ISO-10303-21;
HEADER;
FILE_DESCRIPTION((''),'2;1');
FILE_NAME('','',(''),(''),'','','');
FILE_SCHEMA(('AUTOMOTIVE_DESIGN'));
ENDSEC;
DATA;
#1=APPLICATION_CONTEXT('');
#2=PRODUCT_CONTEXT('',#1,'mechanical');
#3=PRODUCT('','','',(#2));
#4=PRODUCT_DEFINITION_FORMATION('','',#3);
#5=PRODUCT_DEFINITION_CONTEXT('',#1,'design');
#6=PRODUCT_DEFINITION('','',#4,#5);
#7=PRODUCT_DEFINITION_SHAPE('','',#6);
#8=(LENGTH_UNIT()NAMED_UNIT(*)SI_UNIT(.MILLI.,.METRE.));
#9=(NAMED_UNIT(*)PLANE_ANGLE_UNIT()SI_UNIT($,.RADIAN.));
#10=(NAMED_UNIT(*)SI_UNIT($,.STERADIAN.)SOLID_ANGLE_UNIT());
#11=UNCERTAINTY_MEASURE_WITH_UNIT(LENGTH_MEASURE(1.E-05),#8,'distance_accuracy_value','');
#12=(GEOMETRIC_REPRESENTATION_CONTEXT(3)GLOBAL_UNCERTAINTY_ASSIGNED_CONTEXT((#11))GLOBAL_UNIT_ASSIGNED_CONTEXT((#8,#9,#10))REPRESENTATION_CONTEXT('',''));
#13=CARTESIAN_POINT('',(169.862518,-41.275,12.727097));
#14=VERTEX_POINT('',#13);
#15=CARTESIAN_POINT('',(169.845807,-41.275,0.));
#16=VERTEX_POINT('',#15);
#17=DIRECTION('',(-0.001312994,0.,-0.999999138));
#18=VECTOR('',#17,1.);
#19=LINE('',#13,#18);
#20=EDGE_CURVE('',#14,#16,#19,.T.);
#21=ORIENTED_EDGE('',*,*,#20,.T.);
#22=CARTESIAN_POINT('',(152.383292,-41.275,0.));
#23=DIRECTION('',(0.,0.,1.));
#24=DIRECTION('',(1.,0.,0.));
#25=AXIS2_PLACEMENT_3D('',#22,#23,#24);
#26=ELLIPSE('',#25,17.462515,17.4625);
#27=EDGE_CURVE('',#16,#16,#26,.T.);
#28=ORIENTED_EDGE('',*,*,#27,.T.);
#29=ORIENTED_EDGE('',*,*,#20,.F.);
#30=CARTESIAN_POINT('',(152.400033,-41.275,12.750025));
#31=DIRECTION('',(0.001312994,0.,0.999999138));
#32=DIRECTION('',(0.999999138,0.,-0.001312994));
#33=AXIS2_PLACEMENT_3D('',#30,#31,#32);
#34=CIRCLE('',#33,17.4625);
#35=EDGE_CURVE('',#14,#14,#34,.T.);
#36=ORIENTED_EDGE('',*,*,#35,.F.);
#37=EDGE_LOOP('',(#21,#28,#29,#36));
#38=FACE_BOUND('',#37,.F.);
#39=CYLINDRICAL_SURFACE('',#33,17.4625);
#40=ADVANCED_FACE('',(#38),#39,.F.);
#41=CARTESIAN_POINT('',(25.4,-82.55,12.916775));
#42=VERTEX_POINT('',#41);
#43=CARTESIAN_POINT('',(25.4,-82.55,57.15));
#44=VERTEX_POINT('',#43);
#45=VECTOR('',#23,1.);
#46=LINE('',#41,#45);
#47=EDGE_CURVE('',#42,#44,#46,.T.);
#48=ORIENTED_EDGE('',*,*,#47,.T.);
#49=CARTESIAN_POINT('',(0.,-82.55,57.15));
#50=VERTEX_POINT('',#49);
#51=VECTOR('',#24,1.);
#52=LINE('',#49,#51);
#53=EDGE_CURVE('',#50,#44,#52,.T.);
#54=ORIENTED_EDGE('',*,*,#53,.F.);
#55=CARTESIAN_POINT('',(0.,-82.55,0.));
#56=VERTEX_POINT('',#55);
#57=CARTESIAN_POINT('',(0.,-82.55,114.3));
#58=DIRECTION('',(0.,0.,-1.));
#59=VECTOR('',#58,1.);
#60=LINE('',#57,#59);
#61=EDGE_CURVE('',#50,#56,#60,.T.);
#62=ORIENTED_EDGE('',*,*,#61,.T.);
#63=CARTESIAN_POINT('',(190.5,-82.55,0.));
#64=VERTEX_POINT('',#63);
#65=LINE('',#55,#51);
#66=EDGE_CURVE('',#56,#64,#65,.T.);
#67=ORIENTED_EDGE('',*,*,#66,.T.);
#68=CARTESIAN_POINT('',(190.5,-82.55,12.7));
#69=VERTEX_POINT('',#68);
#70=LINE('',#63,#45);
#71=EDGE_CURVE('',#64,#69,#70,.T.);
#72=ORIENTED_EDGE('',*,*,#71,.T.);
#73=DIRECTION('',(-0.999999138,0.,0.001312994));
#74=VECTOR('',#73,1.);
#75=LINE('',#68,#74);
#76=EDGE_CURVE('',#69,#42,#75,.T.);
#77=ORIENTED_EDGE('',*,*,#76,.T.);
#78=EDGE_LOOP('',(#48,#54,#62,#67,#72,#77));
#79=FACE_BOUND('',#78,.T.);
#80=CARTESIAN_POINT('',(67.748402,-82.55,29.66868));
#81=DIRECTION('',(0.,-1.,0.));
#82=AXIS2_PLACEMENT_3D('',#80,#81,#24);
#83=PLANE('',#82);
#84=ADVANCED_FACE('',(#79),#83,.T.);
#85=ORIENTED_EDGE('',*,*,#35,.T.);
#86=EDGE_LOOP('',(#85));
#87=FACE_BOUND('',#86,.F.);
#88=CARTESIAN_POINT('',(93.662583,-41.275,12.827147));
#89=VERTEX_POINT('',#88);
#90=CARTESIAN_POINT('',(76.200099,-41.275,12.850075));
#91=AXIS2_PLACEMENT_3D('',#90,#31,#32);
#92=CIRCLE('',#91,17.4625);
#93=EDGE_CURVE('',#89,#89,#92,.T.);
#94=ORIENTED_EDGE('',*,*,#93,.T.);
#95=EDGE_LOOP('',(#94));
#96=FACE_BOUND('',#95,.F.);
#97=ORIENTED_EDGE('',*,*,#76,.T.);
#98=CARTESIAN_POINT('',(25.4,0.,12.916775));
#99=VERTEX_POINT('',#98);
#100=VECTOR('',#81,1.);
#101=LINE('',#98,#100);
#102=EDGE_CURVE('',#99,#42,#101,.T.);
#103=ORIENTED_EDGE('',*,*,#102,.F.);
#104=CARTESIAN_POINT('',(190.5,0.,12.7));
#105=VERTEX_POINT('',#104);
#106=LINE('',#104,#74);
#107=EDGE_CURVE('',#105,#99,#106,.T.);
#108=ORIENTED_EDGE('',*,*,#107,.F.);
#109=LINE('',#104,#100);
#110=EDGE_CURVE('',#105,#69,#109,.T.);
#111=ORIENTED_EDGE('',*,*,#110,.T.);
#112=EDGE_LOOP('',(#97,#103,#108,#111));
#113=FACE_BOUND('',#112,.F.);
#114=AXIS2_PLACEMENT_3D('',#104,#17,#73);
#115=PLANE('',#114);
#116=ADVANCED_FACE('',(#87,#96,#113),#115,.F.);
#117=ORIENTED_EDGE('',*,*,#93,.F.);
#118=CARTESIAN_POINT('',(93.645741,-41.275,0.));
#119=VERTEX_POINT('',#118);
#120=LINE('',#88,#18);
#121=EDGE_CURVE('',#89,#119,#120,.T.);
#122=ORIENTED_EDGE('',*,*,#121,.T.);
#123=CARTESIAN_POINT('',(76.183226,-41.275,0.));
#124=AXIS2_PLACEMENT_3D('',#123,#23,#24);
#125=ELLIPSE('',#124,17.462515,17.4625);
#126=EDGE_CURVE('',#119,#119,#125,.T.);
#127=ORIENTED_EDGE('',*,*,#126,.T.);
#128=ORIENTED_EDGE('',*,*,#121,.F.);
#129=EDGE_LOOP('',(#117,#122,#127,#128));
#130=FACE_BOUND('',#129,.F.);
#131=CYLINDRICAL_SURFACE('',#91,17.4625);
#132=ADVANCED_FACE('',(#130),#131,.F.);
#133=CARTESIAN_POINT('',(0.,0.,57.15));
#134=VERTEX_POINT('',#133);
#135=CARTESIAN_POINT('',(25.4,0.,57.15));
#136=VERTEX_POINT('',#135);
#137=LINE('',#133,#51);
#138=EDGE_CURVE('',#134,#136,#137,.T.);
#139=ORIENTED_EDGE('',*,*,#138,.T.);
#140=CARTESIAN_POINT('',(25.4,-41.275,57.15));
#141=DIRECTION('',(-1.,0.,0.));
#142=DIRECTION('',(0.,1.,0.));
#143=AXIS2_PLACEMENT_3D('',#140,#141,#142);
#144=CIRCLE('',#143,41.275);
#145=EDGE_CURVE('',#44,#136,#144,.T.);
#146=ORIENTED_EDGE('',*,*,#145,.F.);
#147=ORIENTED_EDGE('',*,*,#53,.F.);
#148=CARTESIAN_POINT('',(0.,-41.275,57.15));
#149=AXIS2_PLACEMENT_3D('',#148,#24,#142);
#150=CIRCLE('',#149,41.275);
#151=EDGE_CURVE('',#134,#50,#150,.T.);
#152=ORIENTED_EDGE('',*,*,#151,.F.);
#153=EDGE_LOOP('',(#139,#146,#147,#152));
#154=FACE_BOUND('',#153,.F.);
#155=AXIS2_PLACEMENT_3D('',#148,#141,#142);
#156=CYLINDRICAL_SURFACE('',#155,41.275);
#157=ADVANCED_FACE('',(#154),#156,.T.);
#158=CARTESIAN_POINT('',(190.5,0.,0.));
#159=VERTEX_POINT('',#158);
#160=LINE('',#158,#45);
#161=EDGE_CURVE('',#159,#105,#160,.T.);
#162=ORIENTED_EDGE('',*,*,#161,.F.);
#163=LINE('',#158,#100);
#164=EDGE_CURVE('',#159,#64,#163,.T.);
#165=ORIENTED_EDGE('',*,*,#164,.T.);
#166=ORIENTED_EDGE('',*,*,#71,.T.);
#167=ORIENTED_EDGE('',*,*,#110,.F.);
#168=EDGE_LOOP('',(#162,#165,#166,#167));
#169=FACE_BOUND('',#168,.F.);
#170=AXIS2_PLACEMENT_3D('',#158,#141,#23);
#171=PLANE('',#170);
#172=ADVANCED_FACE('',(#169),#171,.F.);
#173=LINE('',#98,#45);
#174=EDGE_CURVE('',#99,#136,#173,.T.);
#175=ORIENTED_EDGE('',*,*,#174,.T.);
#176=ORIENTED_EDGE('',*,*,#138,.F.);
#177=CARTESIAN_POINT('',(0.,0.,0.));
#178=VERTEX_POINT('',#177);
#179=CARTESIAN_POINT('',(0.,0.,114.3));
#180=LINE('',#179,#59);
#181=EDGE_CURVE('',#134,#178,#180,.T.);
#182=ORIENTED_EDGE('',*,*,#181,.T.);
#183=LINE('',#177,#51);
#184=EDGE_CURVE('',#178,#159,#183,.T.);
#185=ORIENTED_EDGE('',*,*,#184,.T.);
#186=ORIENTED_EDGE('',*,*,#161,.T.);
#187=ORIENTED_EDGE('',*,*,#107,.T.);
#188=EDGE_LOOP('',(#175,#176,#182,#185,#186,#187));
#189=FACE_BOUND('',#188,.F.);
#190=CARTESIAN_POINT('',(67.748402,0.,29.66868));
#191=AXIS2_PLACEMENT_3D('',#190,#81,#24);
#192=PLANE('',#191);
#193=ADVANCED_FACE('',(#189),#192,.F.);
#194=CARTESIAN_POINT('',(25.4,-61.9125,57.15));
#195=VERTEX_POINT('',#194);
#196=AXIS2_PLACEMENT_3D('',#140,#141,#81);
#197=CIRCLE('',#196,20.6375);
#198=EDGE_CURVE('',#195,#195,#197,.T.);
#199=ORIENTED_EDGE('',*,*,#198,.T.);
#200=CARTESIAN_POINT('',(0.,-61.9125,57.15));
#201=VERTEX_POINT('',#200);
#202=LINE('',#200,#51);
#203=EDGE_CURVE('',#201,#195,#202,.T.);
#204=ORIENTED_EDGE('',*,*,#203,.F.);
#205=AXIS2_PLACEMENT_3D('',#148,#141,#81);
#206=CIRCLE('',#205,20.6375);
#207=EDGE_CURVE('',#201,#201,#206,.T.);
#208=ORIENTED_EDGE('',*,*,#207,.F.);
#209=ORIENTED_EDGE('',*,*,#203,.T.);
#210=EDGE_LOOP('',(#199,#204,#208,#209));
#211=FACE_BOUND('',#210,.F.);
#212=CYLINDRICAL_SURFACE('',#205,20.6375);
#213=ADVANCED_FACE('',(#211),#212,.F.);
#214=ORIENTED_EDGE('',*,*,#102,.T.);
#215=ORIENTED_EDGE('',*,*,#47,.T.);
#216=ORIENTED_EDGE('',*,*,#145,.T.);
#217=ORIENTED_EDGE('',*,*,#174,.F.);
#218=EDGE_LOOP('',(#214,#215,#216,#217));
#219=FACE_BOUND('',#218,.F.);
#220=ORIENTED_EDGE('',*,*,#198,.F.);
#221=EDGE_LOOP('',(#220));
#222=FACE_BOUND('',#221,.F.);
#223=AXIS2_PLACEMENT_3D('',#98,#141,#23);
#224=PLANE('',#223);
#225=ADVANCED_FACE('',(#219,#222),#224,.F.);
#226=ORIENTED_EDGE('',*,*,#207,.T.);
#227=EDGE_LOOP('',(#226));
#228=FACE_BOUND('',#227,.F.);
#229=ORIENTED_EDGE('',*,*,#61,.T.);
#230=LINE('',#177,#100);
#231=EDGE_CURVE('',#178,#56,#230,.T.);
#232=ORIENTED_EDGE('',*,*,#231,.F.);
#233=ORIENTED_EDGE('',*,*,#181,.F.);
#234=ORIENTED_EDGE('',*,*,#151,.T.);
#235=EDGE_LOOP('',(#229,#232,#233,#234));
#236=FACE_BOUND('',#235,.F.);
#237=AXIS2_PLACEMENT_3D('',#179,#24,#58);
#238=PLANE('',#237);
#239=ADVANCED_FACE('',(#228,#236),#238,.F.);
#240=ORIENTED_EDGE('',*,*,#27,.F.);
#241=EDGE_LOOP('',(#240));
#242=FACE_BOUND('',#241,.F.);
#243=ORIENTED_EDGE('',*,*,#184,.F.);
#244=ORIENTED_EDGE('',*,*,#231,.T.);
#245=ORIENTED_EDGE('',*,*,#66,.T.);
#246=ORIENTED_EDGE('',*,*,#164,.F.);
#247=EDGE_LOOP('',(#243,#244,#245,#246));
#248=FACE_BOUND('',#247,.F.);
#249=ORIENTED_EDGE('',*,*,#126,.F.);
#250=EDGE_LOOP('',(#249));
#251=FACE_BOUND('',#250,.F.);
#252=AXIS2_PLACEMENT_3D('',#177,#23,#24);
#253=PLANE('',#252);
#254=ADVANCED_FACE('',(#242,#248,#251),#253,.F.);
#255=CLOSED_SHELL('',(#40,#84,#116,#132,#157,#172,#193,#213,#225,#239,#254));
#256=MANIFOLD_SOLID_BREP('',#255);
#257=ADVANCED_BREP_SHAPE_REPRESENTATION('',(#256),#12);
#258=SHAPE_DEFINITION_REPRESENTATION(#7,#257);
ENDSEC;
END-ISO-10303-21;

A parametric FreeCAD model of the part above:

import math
import FreeCAD as App
import Part
import Sketcher
from FreeCAD import Vector
Q = App.Units.Quantity


def add_polygon(sketch, points):
    """Adds a closed chain of lines whose ends are joined by coincident constraints."""
    first, n = sketch.GeometryCount, len(points)
    for a, b in zip(points, points[1:] + points[:1]):
        sketch.addGeometry(Part.LineSegment(App.Vector(*a, 0), App.Vector(*b, 0)), False)
    for i in range(n):
        sketch.addConstraint(Sketcher.Constraint("Coincident", first + i, 2, first + (i + 1) % n, 1))

doc = App.newDocument("Part")
params = doc.addObject("Spreadsheet::Sheet", "Params")
for row, (alias, value) in enumerate([
    ("sketch1_width", "1 in"),
    ("sketch1_width2", "7.5 in"),
    ("sketch1_height", "4.5 in"),
    ("sketch1_height2", "0.5 in"),
    ("pad1_length", "3.25 in"),
    ("sketch2_diameter", "1.625 in"),
    ("sketch2_radius", "1.625 in"),
    ("sketch2_height", "2.25 in"),
    ("pocket1_length", "6 in"),
    ("sketch3_diameter", "1.375 in"),
    ("pocket2_length", "1 in"),
], start=1):
    params.set(f"A{row}", alias)
    params.set(f"B{row}", "=" + value)
    params.setAlias(f"B{row}", alias)

body = doc.addObject("PartDesign::Body", "Body")

sketch1 = doc.addObject("Sketcher::SketchObject", "Sketch")
body.addObject(sketch1)
sketch1.AttachmentSupport = (doc.XZ_Plane, [""])
sketch1.MapMode = "FlatFace"
add_polygon(sketch1, [(0, 114), (0, 0), (190, 0), (190, 13), (25, 13), (25, 114)])
sketch1.addConstraint([
    Sketcher.Constraint("Vertical", 0),
    Sketcher.Constraint("Horizontal", 1),
    Sketcher.Constraint("Vertical", 2),
    Sketcher.Constraint("Vertical", 4),
    Sketcher.Constraint("Horizontal", 5),
    Sketcher.Constraint("Coincident", 0, 2, -1, 1),
    Sketcher.Constraint("DistanceX", 5, 2, 5, 1, Q("1 in")),
    Sketcher.Constraint("DistanceX", 1, 1, 1, 2, Q("7.5 in")),
    Sketcher.Constraint("DistanceY", 0, 2, 0, 1, Q("4.5 in")),
    Sketcher.Constraint("DistanceY", 2, 1, 2, 2, Q("0.5 in")),
    Sketcher.Constraint("DistanceY", 4, 1, 4, 2, 101.383225),
])
sketch1.setExpression("Constraints[12]", "Params.sketch1_width")
sketch1.setExpression("Constraints[13]", "Params.sketch1_width2")
sketch1.setExpression("Constraints[14]", "Params.sketch1_height")
sketch1.setExpression("Constraints[15]", "Params.sketch1_height2")
pad1 = doc.addObject("PartDesign::Pad", "Pad")
body.addObject(pad1)
pad1.Profile = sketch1
pad1.setExpression("Length", "Params.pad1_length")

sketch2 = doc.addObject("Sketcher::SketchObject", "Sketch001")
body.addObject(sketch2)
sketch2.AttachmentSupport = (doc.YZ_Plane, [""])
sketch2.MapMode = "FlatFace"
sketch2.addGeometry([
    Part.Circle(Vector(-41, 57, 0), Vector(0, 0, 1), 21),
    Part.LineSegment(Vector(0, 114, 0), Vector(0, 57, 0)),
    Part.ArcOfCircle(Part.Circle(Vector(-41, 57, 0), Vector(0, 0, 1), 41), math.radians(0), math.radians(180)),
    Part.LineSegment(Vector(-83, 57, 0), Vector(-83, 114, 0)),
    Part.LineSegment(Vector(-83, 114, 0), Vector(0, 114, 0)),
], False)
sketch2.addConstraint([
    Sketcher.Constraint("Tangent", 1, 2, 2, 1),
    Sketcher.Constraint("Tangent", 2, 2, 3, 1),
    Sketcher.Constraint("Coincident", 3, 2, 4, 1),
    Sketcher.Constraint("Coincident", 4, 2, 1, 1),
    Sketcher.Constraint("Vertical", 1),
    Sketcher.Constraint("Vertical", 3),
    Sketcher.Constraint("Horizontal", 4),
    Sketcher.Constraint("Coincident", 2, 3, 0, 3),
    Sketcher.Constraint("PointOnObject", 1, 2, -2),
    Sketcher.Constraint("Diameter", 0, Q("1.625 in")),
    Sketcher.Constraint("Radius", 2, Q("1.625 in")),
    Sketcher.Constraint("DistanceY", 1, 2, 1, 1, Q("2.25 in")),
    Sketcher.Constraint("DistanceY", -1, 1, 3, 2, Q("4.5 in")),
])
sketch2.setExpression("Constraints[9]", "Params.sketch2_diameter")
sketch2.setExpression("Constraints[10]", "Params.sketch2_radius")
sketch2.setExpression("Constraints[11]", "Params.sketch2_height")
pocket1 = doc.addObject("PartDesign::Pocket", "Pocket")
body.addObject(pocket1)
pocket1.Profile = sketch2
pocket1.setExpression("Length", "Params.pocket1_length")
pocket1.Reversed = True

sketch3 = doc.addObject("Sketcher::SketchObject", "Sketch002")
body.addObject(sketch3)
sketch3.Placement = App.Placement(Vector(0.017003, 0, 12.950103), App.Rotation(Vector(0.999999138, 0, -0.001312994), Vector(0, 1, 0), Vector(0.001312994, 0, 0.999999138), "ZXY"))
sketch3.addGeometry([
    Part.Circle(Vector(76, -41, 0), Vector(0, 0, 1), 17),
    Part.Circle(Vector(152, -41, 0), Vector(0, 0, 1), 17),
], False)
sketch3.addConstraint([
    Sketcher.Constraint("Equal", 0, 1),
    Sketcher.Constraint("Horizontal", 0, 3, 1, 3),
    Sketcher.Constraint("Diameter", 0, Q("1.375 in")),
    Sketcher.Constraint("DistanceX", 0, 3, 1, 3, Q("3 in")),
    Sketcher.Constraint("DistanceY", 0, 3, -1, 1, Q("1.625 in")),
    Sketcher.Constraint("DistanceX", -1, 1, 0, 3, 76.183161),
])
sketch3.setExpression("Constraints[2]", "Params.sketch3_diameter")
pocket2 = doc.addObject("PartDesign::Pocket", "Pocket001")
body.addObject(pocket2)
pocket2.Profile = sketch3
pocket2.setExpression("Length", "Params.pocket2_length")

doc.recompute()
